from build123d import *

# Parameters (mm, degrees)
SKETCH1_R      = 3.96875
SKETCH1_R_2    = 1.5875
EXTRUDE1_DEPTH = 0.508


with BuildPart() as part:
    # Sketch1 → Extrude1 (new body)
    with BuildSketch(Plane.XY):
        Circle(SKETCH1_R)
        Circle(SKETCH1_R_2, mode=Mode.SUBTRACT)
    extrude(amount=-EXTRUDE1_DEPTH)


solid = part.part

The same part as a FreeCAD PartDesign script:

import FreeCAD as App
import Part
import Sketcher
from FreeCAD import Vector
Q = App.Units.Quantity

doc = App.newDocument("Part")
params = doc.addObject("Spreadsheet::Sheet", "Params")
for row, (alias, value) in enumerate([
    ("sketch1_diameter", "0.3125 in"),
    ("sketch1_diameter2", "0.125 in"),
    ("pad1_length", "0.02 in"),
], start=1):
    params.set(f"A{row}", alias)
    params.set(f"B{row}", "=" + value)
    params.setAlias(f"B{row}", alias)

body = doc.addObject("PartDesign::Body", "Body")

# Sketch on XY plane
sketch1 = body.newObject("Sketcher::SketchObject", "Sketch")
sketch1.AttachmentSupport = (doc.getObject("XY_Plane"), [""])
sketch1.MapMode = "FlatFace"
sketch1.addGeometry([
    Part.Circle(Vector(0, 0, 0), Vector(0, 0, 1), 3.96875),
    Part.Circle(Vector(0, 0, 0), Vector(0, 0, 1), 1.5875),
], False)
sketch1.addConstraint([
    Sketcher.Constraint("Coincident", 0, 3, -1, 1),
    Sketcher.Constraint("Coincident", 1, 3, -1, 1),
    Sketcher.Constraint("Diameter", 0, Q("0.3125 in")),
    Sketcher.Constraint("Diameter", 1, Q("0.125 in")),
])
sketch1.setExpression("Constraints[2]", "Params.sketch1_diameter")
sketch1.setExpression("Constraints[3]", "Params.sketch1_diameter2")
pad1 = body.newObject("PartDesign::Pad", "Pad")
pad1.Profile = sketch1
pad1.setExpression("Length", "Params.pad1_length")
pad1.Reversed = True

doc.recompute()
